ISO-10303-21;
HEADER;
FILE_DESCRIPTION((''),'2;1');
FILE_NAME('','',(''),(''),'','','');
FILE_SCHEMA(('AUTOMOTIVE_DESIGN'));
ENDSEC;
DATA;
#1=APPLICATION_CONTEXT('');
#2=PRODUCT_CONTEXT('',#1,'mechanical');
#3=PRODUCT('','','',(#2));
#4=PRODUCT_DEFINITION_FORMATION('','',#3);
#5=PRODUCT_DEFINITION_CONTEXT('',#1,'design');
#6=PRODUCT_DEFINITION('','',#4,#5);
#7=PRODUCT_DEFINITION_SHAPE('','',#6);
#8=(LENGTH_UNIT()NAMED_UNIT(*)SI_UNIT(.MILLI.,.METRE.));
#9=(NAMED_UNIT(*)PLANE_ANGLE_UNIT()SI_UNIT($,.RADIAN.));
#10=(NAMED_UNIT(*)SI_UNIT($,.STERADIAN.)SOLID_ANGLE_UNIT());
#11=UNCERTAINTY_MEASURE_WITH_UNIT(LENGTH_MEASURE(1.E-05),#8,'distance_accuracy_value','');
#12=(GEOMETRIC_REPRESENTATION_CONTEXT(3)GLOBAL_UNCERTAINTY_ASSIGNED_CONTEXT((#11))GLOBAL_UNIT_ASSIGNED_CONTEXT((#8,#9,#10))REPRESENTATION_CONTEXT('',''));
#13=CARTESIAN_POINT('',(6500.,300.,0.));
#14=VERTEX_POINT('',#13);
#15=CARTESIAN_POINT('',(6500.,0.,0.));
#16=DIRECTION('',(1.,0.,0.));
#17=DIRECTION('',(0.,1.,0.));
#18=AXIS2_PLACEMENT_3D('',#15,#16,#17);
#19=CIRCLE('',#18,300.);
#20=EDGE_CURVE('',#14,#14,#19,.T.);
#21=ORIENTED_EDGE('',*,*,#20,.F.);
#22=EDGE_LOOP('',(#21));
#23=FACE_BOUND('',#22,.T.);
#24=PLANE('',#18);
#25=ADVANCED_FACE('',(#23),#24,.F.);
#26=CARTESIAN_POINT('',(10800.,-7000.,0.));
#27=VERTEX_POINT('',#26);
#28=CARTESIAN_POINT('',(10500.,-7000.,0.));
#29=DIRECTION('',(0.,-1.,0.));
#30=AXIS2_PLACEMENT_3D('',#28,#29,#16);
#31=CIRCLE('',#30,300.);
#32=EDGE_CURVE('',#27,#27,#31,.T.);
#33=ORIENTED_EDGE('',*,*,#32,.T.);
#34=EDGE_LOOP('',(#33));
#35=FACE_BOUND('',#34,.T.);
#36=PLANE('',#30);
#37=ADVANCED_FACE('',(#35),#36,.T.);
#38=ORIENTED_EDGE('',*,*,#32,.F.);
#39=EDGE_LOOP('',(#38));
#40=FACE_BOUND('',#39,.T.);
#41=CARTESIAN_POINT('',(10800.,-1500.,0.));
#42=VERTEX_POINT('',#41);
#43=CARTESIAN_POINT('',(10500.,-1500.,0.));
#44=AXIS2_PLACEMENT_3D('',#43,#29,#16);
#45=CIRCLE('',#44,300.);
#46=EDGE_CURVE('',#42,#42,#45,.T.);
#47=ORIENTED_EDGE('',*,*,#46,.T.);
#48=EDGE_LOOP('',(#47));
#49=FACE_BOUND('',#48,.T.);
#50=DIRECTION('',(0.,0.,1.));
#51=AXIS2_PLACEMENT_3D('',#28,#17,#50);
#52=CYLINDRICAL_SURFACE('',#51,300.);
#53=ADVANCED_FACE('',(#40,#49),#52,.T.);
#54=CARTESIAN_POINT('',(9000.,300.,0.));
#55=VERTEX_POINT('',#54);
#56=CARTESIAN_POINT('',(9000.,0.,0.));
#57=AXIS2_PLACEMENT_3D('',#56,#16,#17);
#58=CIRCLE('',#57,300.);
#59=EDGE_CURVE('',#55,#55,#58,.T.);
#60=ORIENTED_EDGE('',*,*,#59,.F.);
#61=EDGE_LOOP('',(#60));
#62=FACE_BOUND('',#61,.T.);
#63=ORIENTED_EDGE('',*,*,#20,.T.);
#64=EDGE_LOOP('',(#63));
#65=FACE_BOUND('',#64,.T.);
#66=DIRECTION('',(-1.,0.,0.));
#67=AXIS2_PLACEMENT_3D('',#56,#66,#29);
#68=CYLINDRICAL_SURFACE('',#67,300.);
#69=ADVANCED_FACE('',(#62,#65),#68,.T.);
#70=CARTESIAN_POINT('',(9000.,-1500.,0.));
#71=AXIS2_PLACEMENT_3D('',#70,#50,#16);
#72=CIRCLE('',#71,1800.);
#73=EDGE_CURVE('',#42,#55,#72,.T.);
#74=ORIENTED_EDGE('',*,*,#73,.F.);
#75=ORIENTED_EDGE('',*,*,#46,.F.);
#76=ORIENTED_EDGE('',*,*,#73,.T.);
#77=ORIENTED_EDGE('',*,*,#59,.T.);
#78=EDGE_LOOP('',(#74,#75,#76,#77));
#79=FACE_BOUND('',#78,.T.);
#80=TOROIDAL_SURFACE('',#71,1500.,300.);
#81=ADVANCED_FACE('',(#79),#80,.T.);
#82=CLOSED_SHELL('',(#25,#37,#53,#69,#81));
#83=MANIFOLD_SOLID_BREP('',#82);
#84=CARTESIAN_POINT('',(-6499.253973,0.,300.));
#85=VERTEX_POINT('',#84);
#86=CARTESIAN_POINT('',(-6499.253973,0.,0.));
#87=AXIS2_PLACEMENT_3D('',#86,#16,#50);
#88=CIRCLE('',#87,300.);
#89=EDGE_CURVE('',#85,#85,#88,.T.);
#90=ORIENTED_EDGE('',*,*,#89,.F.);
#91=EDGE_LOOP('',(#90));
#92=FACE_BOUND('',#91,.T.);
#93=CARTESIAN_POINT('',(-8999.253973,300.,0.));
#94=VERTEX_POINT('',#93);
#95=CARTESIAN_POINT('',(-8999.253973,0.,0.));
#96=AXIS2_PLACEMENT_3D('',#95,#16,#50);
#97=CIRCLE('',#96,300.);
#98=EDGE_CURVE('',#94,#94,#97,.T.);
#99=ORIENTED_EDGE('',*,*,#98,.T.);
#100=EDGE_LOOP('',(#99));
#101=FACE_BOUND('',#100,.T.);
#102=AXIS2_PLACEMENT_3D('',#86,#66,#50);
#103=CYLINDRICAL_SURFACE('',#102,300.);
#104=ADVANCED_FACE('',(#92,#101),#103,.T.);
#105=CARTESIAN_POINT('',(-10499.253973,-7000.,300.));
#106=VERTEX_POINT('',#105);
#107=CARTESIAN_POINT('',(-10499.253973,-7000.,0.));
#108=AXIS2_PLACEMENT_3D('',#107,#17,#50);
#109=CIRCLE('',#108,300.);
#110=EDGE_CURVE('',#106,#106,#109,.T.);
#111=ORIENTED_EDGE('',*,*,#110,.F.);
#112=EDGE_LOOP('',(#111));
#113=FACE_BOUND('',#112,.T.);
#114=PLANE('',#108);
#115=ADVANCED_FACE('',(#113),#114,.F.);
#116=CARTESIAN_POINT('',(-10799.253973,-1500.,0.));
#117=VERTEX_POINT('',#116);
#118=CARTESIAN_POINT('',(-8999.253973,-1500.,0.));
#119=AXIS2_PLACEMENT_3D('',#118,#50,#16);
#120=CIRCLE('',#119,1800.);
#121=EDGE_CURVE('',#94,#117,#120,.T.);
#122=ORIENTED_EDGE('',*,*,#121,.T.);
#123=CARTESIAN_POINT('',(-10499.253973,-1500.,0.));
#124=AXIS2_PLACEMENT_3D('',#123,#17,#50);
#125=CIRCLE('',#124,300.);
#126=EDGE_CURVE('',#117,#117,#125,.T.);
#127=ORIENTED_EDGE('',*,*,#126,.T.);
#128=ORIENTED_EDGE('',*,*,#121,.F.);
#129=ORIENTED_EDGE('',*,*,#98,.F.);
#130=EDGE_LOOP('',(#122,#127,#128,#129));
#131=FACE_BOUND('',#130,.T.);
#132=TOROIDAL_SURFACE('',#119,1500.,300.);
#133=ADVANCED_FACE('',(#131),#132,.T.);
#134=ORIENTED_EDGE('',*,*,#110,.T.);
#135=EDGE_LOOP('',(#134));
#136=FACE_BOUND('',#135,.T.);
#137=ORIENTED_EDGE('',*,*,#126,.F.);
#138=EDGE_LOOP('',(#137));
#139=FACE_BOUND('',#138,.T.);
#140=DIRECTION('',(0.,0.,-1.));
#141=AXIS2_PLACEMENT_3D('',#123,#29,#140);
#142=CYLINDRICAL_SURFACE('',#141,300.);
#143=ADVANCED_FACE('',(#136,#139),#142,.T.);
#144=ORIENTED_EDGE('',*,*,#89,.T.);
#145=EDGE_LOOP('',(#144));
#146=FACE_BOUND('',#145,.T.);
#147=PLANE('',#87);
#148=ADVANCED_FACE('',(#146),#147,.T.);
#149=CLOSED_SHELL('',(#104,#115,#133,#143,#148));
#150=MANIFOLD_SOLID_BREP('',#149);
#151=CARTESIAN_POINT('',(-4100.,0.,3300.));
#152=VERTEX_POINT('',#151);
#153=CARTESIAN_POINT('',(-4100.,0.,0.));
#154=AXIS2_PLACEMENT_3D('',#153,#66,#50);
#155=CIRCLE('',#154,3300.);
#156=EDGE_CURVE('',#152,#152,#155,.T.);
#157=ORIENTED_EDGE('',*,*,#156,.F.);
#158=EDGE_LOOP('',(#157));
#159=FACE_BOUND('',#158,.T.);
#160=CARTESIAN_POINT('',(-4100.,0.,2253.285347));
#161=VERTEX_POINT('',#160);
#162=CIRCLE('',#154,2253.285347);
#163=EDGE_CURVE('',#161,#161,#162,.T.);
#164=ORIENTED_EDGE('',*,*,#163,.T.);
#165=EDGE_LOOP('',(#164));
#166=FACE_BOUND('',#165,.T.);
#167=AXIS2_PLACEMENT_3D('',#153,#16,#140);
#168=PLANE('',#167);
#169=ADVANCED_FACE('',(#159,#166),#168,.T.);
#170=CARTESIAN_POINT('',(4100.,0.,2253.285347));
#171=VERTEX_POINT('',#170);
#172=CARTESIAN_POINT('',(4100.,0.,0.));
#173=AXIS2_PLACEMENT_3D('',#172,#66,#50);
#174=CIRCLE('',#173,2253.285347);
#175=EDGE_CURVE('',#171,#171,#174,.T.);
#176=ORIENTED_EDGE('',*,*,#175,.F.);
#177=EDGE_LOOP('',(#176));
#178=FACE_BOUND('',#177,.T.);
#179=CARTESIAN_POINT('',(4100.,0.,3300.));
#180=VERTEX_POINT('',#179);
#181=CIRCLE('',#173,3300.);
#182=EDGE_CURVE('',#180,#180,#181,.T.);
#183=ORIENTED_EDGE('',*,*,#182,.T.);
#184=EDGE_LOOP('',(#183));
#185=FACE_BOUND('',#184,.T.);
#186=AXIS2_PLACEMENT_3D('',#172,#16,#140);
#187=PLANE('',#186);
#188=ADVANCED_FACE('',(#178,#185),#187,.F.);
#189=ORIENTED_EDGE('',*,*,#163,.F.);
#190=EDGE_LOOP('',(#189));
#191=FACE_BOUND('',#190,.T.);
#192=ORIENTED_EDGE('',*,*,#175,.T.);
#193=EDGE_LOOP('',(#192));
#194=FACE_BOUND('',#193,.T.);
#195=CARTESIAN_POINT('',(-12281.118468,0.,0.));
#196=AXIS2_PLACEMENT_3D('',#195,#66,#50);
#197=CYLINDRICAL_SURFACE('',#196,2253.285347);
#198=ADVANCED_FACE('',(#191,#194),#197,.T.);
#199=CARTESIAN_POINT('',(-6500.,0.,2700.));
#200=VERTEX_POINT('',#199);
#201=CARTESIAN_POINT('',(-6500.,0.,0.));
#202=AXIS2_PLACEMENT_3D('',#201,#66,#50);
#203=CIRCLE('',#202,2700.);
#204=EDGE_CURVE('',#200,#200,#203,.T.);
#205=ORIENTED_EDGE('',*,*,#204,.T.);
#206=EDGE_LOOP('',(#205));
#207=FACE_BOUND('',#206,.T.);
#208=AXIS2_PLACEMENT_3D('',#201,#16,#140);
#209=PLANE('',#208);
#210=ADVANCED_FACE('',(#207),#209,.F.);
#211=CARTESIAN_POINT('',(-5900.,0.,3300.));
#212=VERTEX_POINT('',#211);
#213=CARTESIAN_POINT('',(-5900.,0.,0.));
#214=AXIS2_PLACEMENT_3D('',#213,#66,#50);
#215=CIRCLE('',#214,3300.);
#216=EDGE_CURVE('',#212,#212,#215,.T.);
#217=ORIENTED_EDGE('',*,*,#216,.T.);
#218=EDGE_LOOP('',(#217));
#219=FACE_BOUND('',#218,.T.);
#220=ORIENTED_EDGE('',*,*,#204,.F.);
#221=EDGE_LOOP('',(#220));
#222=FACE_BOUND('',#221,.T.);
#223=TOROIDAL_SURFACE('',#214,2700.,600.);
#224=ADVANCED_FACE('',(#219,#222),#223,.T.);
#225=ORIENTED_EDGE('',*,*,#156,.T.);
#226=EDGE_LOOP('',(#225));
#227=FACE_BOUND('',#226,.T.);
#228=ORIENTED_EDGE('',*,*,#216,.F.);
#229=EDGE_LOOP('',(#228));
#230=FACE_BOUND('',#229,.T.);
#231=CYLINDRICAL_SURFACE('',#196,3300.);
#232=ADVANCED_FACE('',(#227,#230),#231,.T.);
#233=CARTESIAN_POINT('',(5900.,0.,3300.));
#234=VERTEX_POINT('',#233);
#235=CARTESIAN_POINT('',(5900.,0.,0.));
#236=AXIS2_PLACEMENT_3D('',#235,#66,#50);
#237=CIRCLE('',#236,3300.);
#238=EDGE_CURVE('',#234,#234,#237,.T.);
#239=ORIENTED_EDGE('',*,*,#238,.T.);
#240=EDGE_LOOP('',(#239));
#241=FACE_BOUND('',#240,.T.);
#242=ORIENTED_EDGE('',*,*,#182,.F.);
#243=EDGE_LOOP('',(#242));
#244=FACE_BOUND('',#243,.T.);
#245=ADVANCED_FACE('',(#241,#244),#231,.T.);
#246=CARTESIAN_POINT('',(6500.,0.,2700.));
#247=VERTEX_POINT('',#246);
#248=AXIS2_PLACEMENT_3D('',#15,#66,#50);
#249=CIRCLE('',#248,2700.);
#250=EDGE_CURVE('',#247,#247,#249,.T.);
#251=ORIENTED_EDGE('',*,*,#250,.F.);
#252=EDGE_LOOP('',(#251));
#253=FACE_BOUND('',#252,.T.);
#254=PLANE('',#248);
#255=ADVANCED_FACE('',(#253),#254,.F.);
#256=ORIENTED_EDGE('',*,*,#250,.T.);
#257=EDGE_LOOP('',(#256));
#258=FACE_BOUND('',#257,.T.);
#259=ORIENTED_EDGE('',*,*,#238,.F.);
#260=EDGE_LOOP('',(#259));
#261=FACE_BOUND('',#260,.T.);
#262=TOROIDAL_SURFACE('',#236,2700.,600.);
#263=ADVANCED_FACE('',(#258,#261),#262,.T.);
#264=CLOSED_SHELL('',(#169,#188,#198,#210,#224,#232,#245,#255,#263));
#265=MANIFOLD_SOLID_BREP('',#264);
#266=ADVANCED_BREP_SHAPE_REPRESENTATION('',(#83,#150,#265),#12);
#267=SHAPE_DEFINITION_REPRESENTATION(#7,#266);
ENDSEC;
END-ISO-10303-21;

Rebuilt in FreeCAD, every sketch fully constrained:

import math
import FreeCAD as App
import Part
import Sketcher
Q = App.Units.Quantity

doc = App.newDocument("Part")
body = doc.addObject("PartDesign::Body", "Body")

# Sketch on XZ plane
sketch1 = body.newObject("Sketcher::SketchObject", "Sketch")
sketch1.AttachmentSupport = (doc.getObject("XZ_Plane"), [""])
sketch1.MapMode = "FlatFace"
sketch1.AttachmentOffset = App.Placement(App.Vector(0, 0, 7000), App.Rotation())
sketch1.addGeometry(Part.Circle(App.Vector(10500, 0, 0), App.Vector(0, 0, 1), 300), False)
sketch1.addConstraint([
    Sketcher.Constraint("PointOnObject", 0, 3, -1),
    Sketcher.Constraint("Diameter", 0, Q("600 mm")),
    Sketcher.Constraint("DistanceX", -1, 1, 0, 3, Q("10500 mm")),
])

# Sketch on XY plane
sketch2 = body.newObject("Sketcher::SketchObject", "Sketch001")
sketch2.AttachmentSupport = (doc.getObject("XY_Plane"), [""])
sketch2.MapMode = "FlatFace"
sketch2.addGeometry([
    Part.LineSegment(App.Vector(10500, -7000, 0), App.Vector(10500, -1500, 0)),
    Part.ArcOfCircle(Part.Circle(App.Vector(9000, -1500, 0), App.Vector(0, 0, 1), 1500), math.radians(0), math.radians(90)),
    Part.LineSegment(App.Vector(9000, 0, 0), App.Vector(6500, 0, 0)),
], False)
sketch2.addConstraint([
    Sketcher.Constraint("Coincident", 0, 2, 1, 1),
    Sketcher.Constraint("Coincident", 1, 2, 2, 1),
    Sketcher.Constraint("Vertical", 0),
    Sketcher.Constraint("Horizontal", 2),
    Sketcher.Constraint("PointOnObject", 1, 2, -1),
    Sketcher.Constraint("Horizontal", 1, 3, 0, 2),
    Sketcher.Constraint("Radius", 1, Q("1500 mm")),
    Sketcher.Constraint("DistanceX", 2, 2, 2, 1, Q("2500 mm")),
    Sketcher.Constraint("DistanceY", 0, 1, 0, 2, Q("5500 mm")),
    Sketcher.Constraint("DistanceX", -1, 1, 1, 3, Q("9000 mm")),
    Sketcher.Constraint("DistanceX", -1, 1, 2, 2, Q("6500 mm")),
])
doc.recompute()

additivepipe = body.newObject("PartDesign::AdditivePipe", "AdditivePipe")
additivepipe.Profile = sketch1
additivepipe.Spine = (sketch2, ["Edge1", "Edge2", "Edge3"])
body2 = doc.addObject("PartDesign::Body", "Body001")

# Sketch on YZ plane
sketch3 = body2.newObject("Sketcher::SketchObject", "Sketch002")
sketch3.AttachmentSupport = (doc.getObject("YZ_Plane001"), [""])
sketch3.MapMode = "FlatFace"
sketch3.AttachmentOffset = App.Placement(App.Vector(0, 0, -6499.253973), App.Rotation())
sketch3.addGeometry(Part.Circle(App.Vector(0, 0, 0), App.Vector(0, 0, 1), 300), False)
sketch3.addConstraint([
    Sketcher.Constraint("Coincident", 0, 3, -1, 1),
    Sketcher.Constraint("Diameter", 0, Q("600 mm")),
])

# Sketch on XY plane
sketch4 = body2.newObject("Sketcher::SketchObject", "Sketch003")
sketch4.AttachmentSupport = (doc.getObject("XY_Plane001"), [""])
sketch4.MapMode = "FlatFace"
sketch4.addGeometry([
    Part.LineSegment(App.Vector(-6499, 0, 0), App.Vector(-8999, 0, 0)),
    Part.ArcOfCircle(Part.Circle(App.Vector(-8999, -1500, 0), App.Vector(0, 0, 1), 1500), math.radians(90), math.radians(180)),
    Part.LineSegment(App.Vector(-10499, -1500, 0), App.Vector(-10499, -7000, 0)),
], False)
sketch4.addConstraint([
    Sketcher.Constraint("Coincident", 0, 2, 1, 1),
    Sketcher.Constraint("Coincident", 1, 2, 2, 1),
    Sketcher.Constraint("Horizontal", 0),
    Sketcher.Constraint("Vertical", 2),
    Sketcher.Constraint("PointOnObject", 0, 1, -1),
    Sketcher.Constraint("Vertical", 1, 3, 0, 2),
    Sketcher.Constraint("Radius", 1, Q("1500 mm")),
    Sketcher.Constraint("DistanceX", 0, 2, 0, 1, Q("2500 mm")),
    Sketcher.Constraint("DistanceY", 2, 2, 2, 1, Q("5500 mm")),
    Sketcher.Constraint("DistanceY", 2, 2, -1, 1, Q("7000 mm")),
    Sketcher.Constraint("DistanceX", 1, 3, -1, 1, Q("8999.253973 mm")),
])
doc.recompute()

additivepipe2 = body2.newObject("PartDesign::AdditivePipe", "AdditivePipe001")
additivepipe2.Profile = sketch3
additivepipe2.Spine = (sketch4, ["Edge1", "Edge2", "Edge3"])
body3 = doc.addObject("PartDesign::Body", "Body002")

# Sketch on XZ plane
sketch5 = body3.newObject("Sketcher::SketchObject", "Sketch004")
sketch5.AttachmentSupport = (doc.getObject("XZ_Plane002"), [""])
sketch5.MapMode = "FlatFace"
sketch5.addGeometry([
    Part.LineSegment(App.Vector(6500, 0, 0), App.Vector(6500, -2700, 0)),  # 0
    Part.ArcOfCircle(Part.Circle(App.Vector(5900, -2700, 0), App.Vector(0, 0, 1), 600), math.radians(-90), math.radians(0)),  # 1
    Part.LineSegment(App.Vector(5900, -3300, 0), App.Vector(4100, -3300, 0)),  # 2
    Part.LineSegment(App.Vector(4100, -3300, 0), App.Vector(4100, -2253, 0)),  # 3
    Part.LineSegment(App.Vector(4100, -2253, 0), App.Vector(-4100, -2253, 0)),  # 4
    Part.LineSegment(App.Vector(-4100, -2253, 0), App.Vector(-4100, -3300, 0)),  # 5
    Part.LineSegment(App.Vector(-4100, -3300, 0), App.Vector(-5900, -3300, 0)),  # 6
    Part.ArcOfCircle(Part.Circle(App.Vector(-5900, -2700, 0), App.Vector(0, 0, 1), 600), math.radians(180), math.radians(270)),  # 7
    Part.LineSegment(App.Vector(-6500, -2700, 0), App.Vector(-6500, 0, 0)),  # 8
    Part.LineSegment(App.Vector(-6500, 0, 0), App.Vector(6500, 0, 0)),  # 9
], False)
sketch5.addConstraint([
    Sketcher.Constraint("Tangent", 0, 2, 1, 2),
    Sketcher.Constraint("Tangent", 1, 1, 2, 1),
    Sketcher.Constraint("Coincident", 2, 2, 3, 1),
    Sketcher.Constraint("Coincident", 3, 2, 4, 1),
    Sketcher.Constraint("Coincident", 4, 2, 5, 1),
    Sketcher.Constraint("Coincident", 5, 2, 6, 1),
    Sketcher.Constraint("Tangent", 6, 2, 7, 2),
    Sketcher.Constraint("Tangent", 7, 1, 8, 1),
    Sketcher.Constraint("Coincident", 8, 2, 9, 1),
    Sketcher.Constraint("Coincident", 9, 2, 0, 1),
    Sketcher.Constraint("Vertical", 0),
    Sketcher.Constraint("Horizontal", 2),
    Sketcher.Constraint("Vertical", 3),
    Sketcher.Constraint("Horizontal", 4),
    Sketcher.Constraint("Vertical", 5),
    Sketcher.Constraint("Horizontal", 6),
    Sketcher.Constraint("Vertical", 8),
    Sketcher.Constraint("Horizontal", 9),
    Sketcher.Constraint("Equal", 1, 7),
    Sketcher.Constraint("Symmetric", 8, 2, 9, 2, -1, 1),
    Sketcher.Constraint("Symmetric", 2, 2, 5, 2, -2),
    Sketcher.Constraint("Radius", 1, Q("600 mm")),
    Sketcher.Constraint("DistanceX", 2, 2, 2, 1, Q("1800 mm")),
    Sketcher.Constraint("DistanceX", 4, 2, 4, 1, Q("8200 mm")),
    Sketcher.Constraint("DistanceY", 0, 2, 0, 1, Q("2700 mm")),
    Sketcher.Constraint("DistanceY", 3, 1, 3, 2, Q("1046.714653 mm")),
])
revolution = body3.newObject("PartDesign::Revolution", "Revolution")
revolution.Profile = sketch5
revolution.ReferenceAxis = (sketch5, ["H_Axis"])
revolution.Angle = 360

doc.recompute()
